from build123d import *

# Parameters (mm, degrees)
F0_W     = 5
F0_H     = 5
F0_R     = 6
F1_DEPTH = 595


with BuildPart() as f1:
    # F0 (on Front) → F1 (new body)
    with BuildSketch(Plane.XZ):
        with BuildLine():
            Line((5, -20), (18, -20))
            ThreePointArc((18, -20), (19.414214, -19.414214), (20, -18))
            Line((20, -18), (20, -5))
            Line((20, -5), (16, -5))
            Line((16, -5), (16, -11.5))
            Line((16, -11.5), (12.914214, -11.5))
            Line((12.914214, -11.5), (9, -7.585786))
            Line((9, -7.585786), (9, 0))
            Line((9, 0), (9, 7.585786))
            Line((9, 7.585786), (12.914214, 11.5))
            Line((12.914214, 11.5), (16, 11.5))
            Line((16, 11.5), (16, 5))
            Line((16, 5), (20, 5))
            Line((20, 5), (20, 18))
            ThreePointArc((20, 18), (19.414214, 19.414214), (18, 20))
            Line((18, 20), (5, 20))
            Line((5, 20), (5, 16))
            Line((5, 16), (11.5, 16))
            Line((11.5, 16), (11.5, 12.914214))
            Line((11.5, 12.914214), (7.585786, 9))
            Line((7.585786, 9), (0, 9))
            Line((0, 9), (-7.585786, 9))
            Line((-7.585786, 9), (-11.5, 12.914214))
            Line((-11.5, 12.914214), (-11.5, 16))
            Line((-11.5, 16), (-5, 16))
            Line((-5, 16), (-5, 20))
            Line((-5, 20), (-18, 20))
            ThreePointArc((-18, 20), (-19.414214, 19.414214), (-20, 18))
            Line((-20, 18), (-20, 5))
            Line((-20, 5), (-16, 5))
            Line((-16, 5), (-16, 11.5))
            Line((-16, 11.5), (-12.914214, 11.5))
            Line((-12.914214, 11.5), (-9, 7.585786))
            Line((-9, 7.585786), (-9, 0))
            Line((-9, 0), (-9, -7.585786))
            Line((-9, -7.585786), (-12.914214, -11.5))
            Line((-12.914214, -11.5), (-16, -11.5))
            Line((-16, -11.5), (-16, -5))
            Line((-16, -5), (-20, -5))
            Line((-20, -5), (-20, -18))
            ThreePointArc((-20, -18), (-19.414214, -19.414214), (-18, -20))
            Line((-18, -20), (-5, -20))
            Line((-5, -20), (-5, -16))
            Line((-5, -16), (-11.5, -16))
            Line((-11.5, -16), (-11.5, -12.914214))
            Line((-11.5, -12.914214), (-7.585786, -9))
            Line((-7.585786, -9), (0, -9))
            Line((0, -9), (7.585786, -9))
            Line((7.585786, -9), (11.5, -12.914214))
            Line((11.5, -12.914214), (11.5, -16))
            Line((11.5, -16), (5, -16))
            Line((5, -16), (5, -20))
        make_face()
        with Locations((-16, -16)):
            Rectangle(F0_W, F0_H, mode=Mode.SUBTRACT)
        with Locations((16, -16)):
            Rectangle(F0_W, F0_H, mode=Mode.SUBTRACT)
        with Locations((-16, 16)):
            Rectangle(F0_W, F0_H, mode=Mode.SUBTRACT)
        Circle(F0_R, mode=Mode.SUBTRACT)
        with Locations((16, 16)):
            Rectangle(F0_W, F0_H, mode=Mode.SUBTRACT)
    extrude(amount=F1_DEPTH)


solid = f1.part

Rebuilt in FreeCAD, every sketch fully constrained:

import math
import FreeCAD as App
import Part
import Sketcher

doc = App.newDocument("Part")
body = doc.addObject("PartDesign::Body", "Body")

sketch1 = body.newObject("Sketcher::SketchObject", "Sketch")
sketch1.AttachmentSupport = (doc.getObject("XZ_Plane"), [""])
sketch1.MapMode = "FlatFace"
sketch1.addGeometry([
    Part.LineSegment(App.Vector(5, -20, 0), App.Vector(18, -20, 0)),
    Part.ArcOfCircle(Part.Circle(App.Vector(18, -18, 0), App.Vector(0, 0, 1), 2), math.radians(-90), math.radians(0)),
    Part.LineSegment(App.Vector(20, -18, 0), App.Vector(20, -5, 0)),
    Part.LineSegment(App.Vector(20, -5, 0), App.Vector(16, -5, 0)),
    Part.LineSegment(App.Vector(16, -5, 0), App.Vector(16, -11.5, 0)),
    Part.LineSegment(App.Vector(16, -11.5, 0), App.Vector(12.9, -11.5, 0)),
    Part.LineSegment(App.Vector(12.9, -11.5, 0), App.Vector(9, -7.6, 0)),
    Part.LineSegment(App.Vector(9, -7.6, 0), App.Vector(9, 7.6, 0)),
    Part.LineSegment(App.Vector(9, 7.6, 0), App.Vector(12.9, 11.5, 0)),
    Part.LineSegment(App.Vector(12.9, 11.5, 0), App.Vector(16, 11.5, 0)),
    Part.LineSegment(App.Vector(16, 11.5, 0), App.Vector(16, 5, 0)),
    Part.LineSegment(App.Vector(16, 5, 0), App.Vector(20, 5, 0)),
    Part.LineSegment(App.Vector(20, 5, 0), App.Vector(20, 18, 0)),
    Part.ArcOfCircle(Part.Circle(App.Vector(18, 18, 0), App.Vector(0, 0, 1), 2), math.radians(0), math.radians(90)),
    Part.LineSegment(App.Vector(18, 20, 0), App.Vector(5, 20, 0)),
    Part.LineSegment(App.Vector(5, 20, 0), App.Vector(5, 16, 0)),
    Part.LineSegment(App.Vector(5, 16, 0), App.Vector(11.5, 16, 0)),
    Part.LineSegment(App.Vector(11.5, 16, 0), App.Vector(11.5, 12.9, 0)),
    Part.LineSegment(App.Vector(11.5, 12.9, 0), App.Vector(7.6, 9, 0)),
    Part.LineSegment(App.Vector(7.6, 9, 0), App.Vector(-7.6, 9, 0)),
    Part.LineSegment(App.Vector(-7.6, 9, 0), App.Vector(-11.5, 12.9, 0)),
    Part.LineSegment(App.Vector(-11.5, 12.9, 0), App.Vector(-11.5, 16, 0)),
    Part.LineSegment(App.Vector(-11.5, 16, 0), App.Vector(-5, 16, 0)),
    Part.LineSegment(App.Vector(-5, 16, 0), App.Vector(-5, 20, 0)),
    Part.LineSegment(App.Vector(-5, 20, 0), App.Vector(-18, 20, 0)),
    Part.ArcOfCircle(Part.Circle(App.Vector(-18, 18, 0), App.Vector(0, 0, 1), 2), math.radians(90), math.radians(180)),
    Part.LineSegment(App.Vector(-20, 18, 0), App.Vector(-20, 5, 0)),
    Part.LineSegment(App.Vector(-20, 5, 0), App.Vector(-16, 5, 0)),
    Part.LineSegment(App.Vector(-16, 5, 0), App.Vector(-16, 11.5, 0)),
    Part.LineSegment(App.Vector(-16, 11.5, 0), App.Vector(-12.9, 11.5, 0)),
    Part.LineSegment(App.Vector(-12.9, 11.5, 0), App.Vector(-9, 7.6, 0)),
    Part.LineSegment(App.Vector(-9, 7.6, 0), App.Vector(-9, -7.6, 0)),
    Part.LineSegment(App.Vector(-9, -7.6, 0), App.Vector(-12.9, -11.5, 0)),
    Part.LineSegment(App.Vector(-12.9, -11.5, 0), App.Vector(-16, -11.5, 0)),
    Part.LineSegment(App.Vector(-16, -11.5, 0), App.Vector(-16, -5, 0)),
    Part.LineSegment(App.Vector(-16, -5, 0), App.Vector(-20, -5, 0)),
    Part.LineSegment(App.Vector(-20, -5, 0), App.Vector(-20, -18, 0)),
    Part.ArcOfCircle(Part.Circle(App.Vector(-18, -18, 0), App.Vector(0, 0, 1), 2), math.radians(180), math.radians(270)),
    Part.LineSegment(App.Vector(-18, -20, 0), App.Vector(-5, -20, 0)),
    Part.LineSegment(App.Vector(-5, -20, 0), App.Vector(-5, -16, 0)),
    Part.LineSegment(App.Vector(-5, -16, 0), App.Vector(-11.5, -16, 0)),
    Part.LineSegment(App.Vector(-11.5, -16, 0), App.Vector(-11.5, -12.9, 0)),
    Part.LineSegment(App.Vector(-11.5, -12.9, 0), App.Vector(-7.6, -9, 0)),
    Part.LineSegment(App.Vector(-7.6, -9, 0), App.Vector(7.6, -9, 0)),
    Part.LineSegment(App.Vector(7.6, -9, 0), App.Vector(11.5, -12.9, 0)),
    Part.LineSegment(App.Vector(11.5, -12.9, 0), App.Vector(11.5, -16, 0)),
    Part.LineSegment(App.Vector(11.5, -16, 0), App.Vector(5, -16, 0)),
    Part.LineSegment(App.Vector(5, -16, 0), App.Vector(5, -20, 0)),
    Part.LineSegment(App.Vector(-13.5, -18.5, 0), App.Vector(-18.5, -18.5, 0)),
    Part.LineSegment(App.Vector(-18.5, -18.5, 0), App.Vector(-18.5, -13.5, 0)),
    Part.LineSegment(App.Vector(-18.5, -13.5, 0), App.Vector(-13.5, -13.5, 0)),
    Part.LineSegment(App.Vector(-13.5, -13.5, 0), App.Vector(-13.5, -18.5, 0)),
    Part.LineSegment(App.Vector(18.5, -18.5, 0), App.Vector(13.5, -18.5, 0)),
    Part.LineSegment(App.Vector(13.5, -18.5, 0), App.Vector(13.5, -13.5, 0)),
    Part.LineSegment(App.Vector(13.5, -13.5, 0), App.Vector(18.5, -13.5, 0)),
    Part.LineSegment(App.Vector(18.5, -13.5, 0), App.Vector(18.5, -18.5, 0)),
    Part.LineSegment(App.Vector(-13.5, 13.5, 0), App.Vector(-18.5, 13.5, 0)),
    Part.LineSegment(App.Vector(-18.5, 13.5, 0), App.Vector(-18.5, 18.5, 0)),
    Part.LineSegment(App.Vector(-18.5, 18.5, 0), App.Vector(-13.5, 18.5, 0)),
    Part.LineSegment(App.Vector(-13.5, 18.5, 0), App.Vector(-13.5, 13.5, 0)),
    Part.Circle(App.Vector(0, 0, 0), App.Vector(0, 0, 1), 6),
    Part.LineSegment(App.Vector(18.5, 13.5, 0), App.Vector(13.5, 13.5, 0)),
    Part.LineSegment(App.Vector(13.5, 13.5, 0), App.Vector(13.5, 18.5, 0)),
    Part.LineSegment(App.Vector(13.5, 18.5, 0), App.Vector(18.5, 18.5, 0)),
    Part.LineSegment(App.Vector(18.5, 18.5, 0), App.Vector(18.5, 13.5, 0)),
], False)
sketch1.addConstraint([
    Sketcher.Constraint("Tangent", 0, 2, 1, 1),
    Sketcher.Constraint("Tangent", 1, 2, 2, 1),
    Sketcher.Constraint("Coincident", 2, 2, 3, 1),
    Sketcher.Constraint("Coincident", 3, 2, 4, 1),
    Sketcher.Constraint("Coincident", 4, 2, 5, 1),
    Sketcher.Constraint("Coincident", 5, 2, 6, 1),
    Sketcher.Constraint("Coincident", 6, 2, 7, 1),
    Sketcher.Constraint("Coincident", 7, 2, 8, 1),
    Sketcher.Constraint("Coincident", 8, 2, 9, 1),
    Sketcher.Constraint("Coincident", 9, 2, 10, 1),
    Sketcher.Constraint("Coincident", 10, 2, 11, 1),
    Sketcher.Constraint("Coincident", 11, 2, 12, 1),
    Sketcher.Constraint("Tangent", 12, 2, 13, 1),
    Sketcher.Constraint("Tangent", 13, 2, 14, 1),
    Sketcher.Constraint("Coincident", 14, 2, 15, 1),
    Sketcher.Constraint("Coincident", 15, 2, 16, 1),
    Sketcher.Constraint("Coincident", 16, 2, 17, 1),
    Sketcher.Constraint("Coincident", 17, 2, 18, 1),
    Sketcher.Constraint("Coincident", 18, 2, 19, 1),
    Sketcher.Constraint("Coincident", 19, 2, 20, 1),
    Sketcher.Constraint("Coincident", 20, 2, 21, 1),
    Sketcher.Constraint("Coincident", 21, 2, 22, 1),
    Sketcher.Constraint("Coincident", 22, 2, 23, 1),
    Sketcher.Constraint("Coincident", 23, 2, 24, 1),
    Sketcher.Constraint("Tangent", 24, 2, 25, 1),
    Sketcher.Constraint("Tangent", 25, 2, 26, 1),
    Sketcher.Constraint("Coincident", 26, 2, 27, 1),
    Sketcher.Constraint("Coincident", 27, 2, 28, 1),
    Sketcher.Constraint("Coincident", 28, 2, 29, 1),
    Sketcher.Constraint("Coincident", 29, 2, 30, 1),
    Sketcher.Constraint("Coincident", 30, 2, 31, 1),
    Sketcher.Constraint("Coincident", 31, 2, 32, 1),
    Sketcher.Constraint("Coincident", 32, 2, 33, 1),
    Sketcher.Constraint("Coincident", 33, 2, 34, 1),
    Sketcher.Constraint("Coincident", 34, 2, 35, 1),
    Sketcher.Constraint("Coincident", 35, 2, 36, 1),
    Sketcher.Constraint("Tangent", 36, 2, 37, 1),
    Sketcher.Constraint("Tangent", 37, 2, 38, 1),
    Sketcher.Constraint("Coincident", 38, 2, 39, 1),
    Sketcher.Constraint("Coincident", 39, 2, 40, 1),
    Sketcher.Constraint("Coincident", 40, 2, 41, 1),
    Sketcher.Constraint("Coincident", 41, 2, 42, 1),
    Sketcher.Constraint("Coincident", 42, 2, 43, 1),
    Sketcher.Constraint("Coincident", 43, 2, 44, 1),
    Sketcher.Constraint("Coincident", 44, 2, 45, 1),
    Sketcher.Constraint("Coincident", 45, 2, 46, 1),
    Sketcher.Constraint("Coincident", 46, 2, 47, 1),
    Sketcher.Constraint("Coincident", 47, 2, 0, 1),
    Sketcher.Constraint("Coincident", 48, 2, 49, 1),
    Sketcher.Constraint("Coincident", 49, 2, 50, 1),
    Sketcher.Constraint("Coincident", 50, 2, 51, 1),
    Sketcher.Constraint("Coincident", 51, 2, 48, 1),
    Sketcher.Constraint("Coincident", 52, 2, 53, 1),
    Sketcher.Constraint("Coincident", 53, 2, 54, 1),
    Sketcher.Constraint("Coincident", 54, 2, 55, 1),
    Sketcher.Constraint("Coincident", 55, 2, 52, 1),
    Sketcher.Constraint("Coincident", 56, 2, 57, 1),
    Sketcher.Constraint("Coincident", 57, 2, 58, 1),
    Sketcher.Constraint("Coincident", 58, 2, 59, 1),
    Sketcher.Constraint("Coincident", 59, 2, 56, 1),
    Sketcher.Constraint("Coincident", 61, 2, 62, 1),
    Sketcher.Constraint("Coincident", 62, 2, 63, 1),
    Sketcher.Constraint("Coincident", 63, 2, 64, 1),
    Sketcher.Constraint("Coincident", 64, 2, 61, 1),
    Sketcher.Constraint("Horizontal", 0),
    Sketcher.Constraint("Vertical", 2),
    Sketcher.Constraint("Horizontal", 3),
    Sketcher.Constraint("Vertical", 4),
    Sketcher.Constraint("Horizontal", 5),
    Sketcher.Constraint("Vertical", 7),
    Sketcher.Constraint("Horizontal", 9),
    Sketcher.Constraint("Vertical", 10),
    Sketcher.Constraint("Horizontal", 11),
    Sketcher.Constraint("Vertical", 12),
    Sketcher.Constraint("Horizontal", 14),
    Sketcher.Constraint("Vertical", 15),
    Sketcher.Constraint("Horizontal", 16),
    Sketcher.Constraint("Vertical", 17),
    Sketcher.Constraint("Horizontal", 19),
    Sketcher.Constraint("Vertical", 21),
    Sketcher.Constraint("Horizontal", 22),
    Sketcher.Constraint("Vertical", 23),
    Sketcher.Constraint("Horizontal", 24),
    Sketcher.Constraint("Vertical", 26),
    Sketcher.Constraint("Horizontal", 27),
    Sketcher.Constraint("Vertical", 28),
    Sketcher.Constraint("Horizontal", 29),
    Sketcher.Constraint("Vertical", 31),
    Sketcher.Constraint("Horizontal", 33),
    Sketcher.Constraint("Vertical", 34),
    Sketcher.Constraint("Horizontal", 35),
    Sketcher.Constraint("Vertical", 36),
    Sketcher.Constraint("Horizontal", 38),
    Sketcher.Constraint("Vertical", 39),
    Sketcher.Constraint("Horizontal", 40),
    Sketcher.Constraint("Vertical", 41),
    Sketcher.Constraint("Horizontal", 43),
    Sketcher.Constraint("Vertical", 45),
    Sketcher.Constraint("Horizontal", 46),
    Sketcher.Constraint("Vertical", 47),
    Sketcher.Constraint("Horizontal", 48),
    Sketcher.Constraint("Vertical", 49),
    Sketcher.Constraint("Horizontal", 50),
    Sketcher.Constraint("Vertical", 51),
    Sketcher.Constraint("Horizontal", 52),
    Sketcher.Constraint("Vertical", 53),
    Sketcher.Constraint("Horizontal", 54),
    Sketcher.Constraint("Vertical", 55),
    Sketcher.Constraint("Horizontal", 56),
    Sketcher.Constraint("Vertical", 57),
    Sketcher.Constraint("Horizontal", 58),
    Sketcher.Constraint("Vertical", 59),
    Sketcher.Constraint("Horizontal", 61),
    Sketcher.Constraint("Vertical", 62),
    Sketcher.Constraint("Horizontal", 63),
    Sketcher.Constraint("Vertical", 64),
    Sketcher.Constraint("Coincident", 60, 3, -1, 1),
    Sketcher.Constraint("Equal", 1, 13),
    Sketcher.Constraint("Equal", 13, 25),
    Sketcher.Constraint("Equal", 25, 37),
    Sketcher.Constraint("Symmetric", 1, 3, 25, 3, -1, 1),
    Sketcher.Constraint("Symmetric", 13, 3, 37, 3, -1, 1),
    Sketcher.Constraint("Symmetric", 3, 2, 27, 2, -1, 1),
    Sketcher.Constraint("Symmetric", 5, 2, 29, 2, -1, 1),
    Sketcher.Constraint("Symmetric", 6, 2, 30, 2, -1, 1),
    Sketcher.Constraint("Symmetric", 8, 2, 32, 2, -1, 1),
    Sketcher.Constraint("Symmetric", 10, 2, 34, 2, -1, 1),
    Sketcher.Constraint("Symmetric", 15, 2, 39, 2, -1, 1),
    Sketcher.Constraint("Symmetric", 17, 2, 41, 2, -1, 1),
    Sketcher.Constraint("Symmetric", 18, 2, 42, 2, -1, 1),
    Sketcher.Constraint("Symmetric", 20, 2, 44, 2, -1, 1),
    Sketcher.Constraint("Symmetric", 22, 2, 46, 2, -1, 1),
    Sketcher.Constraint("Symmetric", 54, 2, 56, 2, -1, 1),
    Sketcher.Constraint("Symmetric", 52, 2, 58, 2, -1, 1),
    Sketcher.Constraint("Symmetric", 50, 2, 61, 2, -1, 1),
    Sketcher.Constraint("Symmetric", 48, 2, 63, 2, -1, 1),
    Sketcher.Constraint("Symmetric", 13, 3, 25, 3, -2),
    Sketcher.Constraint("Symmetric", 17, 2, 20, 2, -2),
    Sketcher.Constraint("Symmetric", 15, 2, 22, 2, -2),
    Sketcher.Constraint("Symmetric", 10, 2, 27, 2, -2),
    Sketcher.Constraint("Symmetric", 8, 2, 29, 2, -2),
    Sketcher.Constraint("Symmetric", 51, 2, 52, 2, -2),
    Sketcher.Constraint("Symmetric", 49, 2, 54, 2, -2),
    Sketcher.Constraint("Perpendicular", 6, 8),
    Sketcher.Constraint("Parallel", 8, 18),
    Sketcher.Constraint("Perpendicular", 18, 20),
    Sketcher.Constraint("Perpendicular", 30, 32),
    Sketcher.Constraint("Perpendicular", 42, 44),
    Sketcher.Constraint("Horizontal", 7, 2, 30, 2),
    Sketcher.Constraint("Equal", 38, 2),
    Sketcher.Constraint("Equal", 46, 4),
    Sketcher.Constraint("Equal", 43, 7),
    Sketcher.Constraint("Equal", 35, 15),
    Sketcher.Constraint("Equal", 33, 17),
    Sketcher.Constraint("Equal", 63, 49),
    Sketcher.Constraint("Equal", 8, 18),
    Sketcher.Constraint("Diameter", 60, 12.0),
    Sketcher.Constraint("Radius", 1, 1.999999),
    Sketcher.Constraint("DistanceX", 0, 1, 0, 2, 13.0),
    Sketcher.Constraint("DistanceX", 3, 2, 3, 1, 4.0),
    Sketcher.Constraint("DistanceX", 48, 2, 48, 1, 5.0),
    Sketcher.Constraint("DistanceX", 16, 1, 16, 2, 6.5),
    Sketcher.Constraint("DistanceX", -1, 1, 1, 3, 18.000001),
    Sketcher.Constraint("DistanceX", -1, 1, 6, 2, 9.0),
    Sketcher.Constraint("DistanceX", 48, 2, -1, 1, 18.5),
    Sketcher.Constraint("DistanceY", 48, 2, -1, 1, 18.5),
    Sketcher.Constraint("DistanceX", 5, 2, 5, 1, 3.085786),
])
pad1 = body.newObject("PartDesign::Pad", "Pad")
pad1.Profile = sketch1
pad1.Length = 595

doc.recompute()
